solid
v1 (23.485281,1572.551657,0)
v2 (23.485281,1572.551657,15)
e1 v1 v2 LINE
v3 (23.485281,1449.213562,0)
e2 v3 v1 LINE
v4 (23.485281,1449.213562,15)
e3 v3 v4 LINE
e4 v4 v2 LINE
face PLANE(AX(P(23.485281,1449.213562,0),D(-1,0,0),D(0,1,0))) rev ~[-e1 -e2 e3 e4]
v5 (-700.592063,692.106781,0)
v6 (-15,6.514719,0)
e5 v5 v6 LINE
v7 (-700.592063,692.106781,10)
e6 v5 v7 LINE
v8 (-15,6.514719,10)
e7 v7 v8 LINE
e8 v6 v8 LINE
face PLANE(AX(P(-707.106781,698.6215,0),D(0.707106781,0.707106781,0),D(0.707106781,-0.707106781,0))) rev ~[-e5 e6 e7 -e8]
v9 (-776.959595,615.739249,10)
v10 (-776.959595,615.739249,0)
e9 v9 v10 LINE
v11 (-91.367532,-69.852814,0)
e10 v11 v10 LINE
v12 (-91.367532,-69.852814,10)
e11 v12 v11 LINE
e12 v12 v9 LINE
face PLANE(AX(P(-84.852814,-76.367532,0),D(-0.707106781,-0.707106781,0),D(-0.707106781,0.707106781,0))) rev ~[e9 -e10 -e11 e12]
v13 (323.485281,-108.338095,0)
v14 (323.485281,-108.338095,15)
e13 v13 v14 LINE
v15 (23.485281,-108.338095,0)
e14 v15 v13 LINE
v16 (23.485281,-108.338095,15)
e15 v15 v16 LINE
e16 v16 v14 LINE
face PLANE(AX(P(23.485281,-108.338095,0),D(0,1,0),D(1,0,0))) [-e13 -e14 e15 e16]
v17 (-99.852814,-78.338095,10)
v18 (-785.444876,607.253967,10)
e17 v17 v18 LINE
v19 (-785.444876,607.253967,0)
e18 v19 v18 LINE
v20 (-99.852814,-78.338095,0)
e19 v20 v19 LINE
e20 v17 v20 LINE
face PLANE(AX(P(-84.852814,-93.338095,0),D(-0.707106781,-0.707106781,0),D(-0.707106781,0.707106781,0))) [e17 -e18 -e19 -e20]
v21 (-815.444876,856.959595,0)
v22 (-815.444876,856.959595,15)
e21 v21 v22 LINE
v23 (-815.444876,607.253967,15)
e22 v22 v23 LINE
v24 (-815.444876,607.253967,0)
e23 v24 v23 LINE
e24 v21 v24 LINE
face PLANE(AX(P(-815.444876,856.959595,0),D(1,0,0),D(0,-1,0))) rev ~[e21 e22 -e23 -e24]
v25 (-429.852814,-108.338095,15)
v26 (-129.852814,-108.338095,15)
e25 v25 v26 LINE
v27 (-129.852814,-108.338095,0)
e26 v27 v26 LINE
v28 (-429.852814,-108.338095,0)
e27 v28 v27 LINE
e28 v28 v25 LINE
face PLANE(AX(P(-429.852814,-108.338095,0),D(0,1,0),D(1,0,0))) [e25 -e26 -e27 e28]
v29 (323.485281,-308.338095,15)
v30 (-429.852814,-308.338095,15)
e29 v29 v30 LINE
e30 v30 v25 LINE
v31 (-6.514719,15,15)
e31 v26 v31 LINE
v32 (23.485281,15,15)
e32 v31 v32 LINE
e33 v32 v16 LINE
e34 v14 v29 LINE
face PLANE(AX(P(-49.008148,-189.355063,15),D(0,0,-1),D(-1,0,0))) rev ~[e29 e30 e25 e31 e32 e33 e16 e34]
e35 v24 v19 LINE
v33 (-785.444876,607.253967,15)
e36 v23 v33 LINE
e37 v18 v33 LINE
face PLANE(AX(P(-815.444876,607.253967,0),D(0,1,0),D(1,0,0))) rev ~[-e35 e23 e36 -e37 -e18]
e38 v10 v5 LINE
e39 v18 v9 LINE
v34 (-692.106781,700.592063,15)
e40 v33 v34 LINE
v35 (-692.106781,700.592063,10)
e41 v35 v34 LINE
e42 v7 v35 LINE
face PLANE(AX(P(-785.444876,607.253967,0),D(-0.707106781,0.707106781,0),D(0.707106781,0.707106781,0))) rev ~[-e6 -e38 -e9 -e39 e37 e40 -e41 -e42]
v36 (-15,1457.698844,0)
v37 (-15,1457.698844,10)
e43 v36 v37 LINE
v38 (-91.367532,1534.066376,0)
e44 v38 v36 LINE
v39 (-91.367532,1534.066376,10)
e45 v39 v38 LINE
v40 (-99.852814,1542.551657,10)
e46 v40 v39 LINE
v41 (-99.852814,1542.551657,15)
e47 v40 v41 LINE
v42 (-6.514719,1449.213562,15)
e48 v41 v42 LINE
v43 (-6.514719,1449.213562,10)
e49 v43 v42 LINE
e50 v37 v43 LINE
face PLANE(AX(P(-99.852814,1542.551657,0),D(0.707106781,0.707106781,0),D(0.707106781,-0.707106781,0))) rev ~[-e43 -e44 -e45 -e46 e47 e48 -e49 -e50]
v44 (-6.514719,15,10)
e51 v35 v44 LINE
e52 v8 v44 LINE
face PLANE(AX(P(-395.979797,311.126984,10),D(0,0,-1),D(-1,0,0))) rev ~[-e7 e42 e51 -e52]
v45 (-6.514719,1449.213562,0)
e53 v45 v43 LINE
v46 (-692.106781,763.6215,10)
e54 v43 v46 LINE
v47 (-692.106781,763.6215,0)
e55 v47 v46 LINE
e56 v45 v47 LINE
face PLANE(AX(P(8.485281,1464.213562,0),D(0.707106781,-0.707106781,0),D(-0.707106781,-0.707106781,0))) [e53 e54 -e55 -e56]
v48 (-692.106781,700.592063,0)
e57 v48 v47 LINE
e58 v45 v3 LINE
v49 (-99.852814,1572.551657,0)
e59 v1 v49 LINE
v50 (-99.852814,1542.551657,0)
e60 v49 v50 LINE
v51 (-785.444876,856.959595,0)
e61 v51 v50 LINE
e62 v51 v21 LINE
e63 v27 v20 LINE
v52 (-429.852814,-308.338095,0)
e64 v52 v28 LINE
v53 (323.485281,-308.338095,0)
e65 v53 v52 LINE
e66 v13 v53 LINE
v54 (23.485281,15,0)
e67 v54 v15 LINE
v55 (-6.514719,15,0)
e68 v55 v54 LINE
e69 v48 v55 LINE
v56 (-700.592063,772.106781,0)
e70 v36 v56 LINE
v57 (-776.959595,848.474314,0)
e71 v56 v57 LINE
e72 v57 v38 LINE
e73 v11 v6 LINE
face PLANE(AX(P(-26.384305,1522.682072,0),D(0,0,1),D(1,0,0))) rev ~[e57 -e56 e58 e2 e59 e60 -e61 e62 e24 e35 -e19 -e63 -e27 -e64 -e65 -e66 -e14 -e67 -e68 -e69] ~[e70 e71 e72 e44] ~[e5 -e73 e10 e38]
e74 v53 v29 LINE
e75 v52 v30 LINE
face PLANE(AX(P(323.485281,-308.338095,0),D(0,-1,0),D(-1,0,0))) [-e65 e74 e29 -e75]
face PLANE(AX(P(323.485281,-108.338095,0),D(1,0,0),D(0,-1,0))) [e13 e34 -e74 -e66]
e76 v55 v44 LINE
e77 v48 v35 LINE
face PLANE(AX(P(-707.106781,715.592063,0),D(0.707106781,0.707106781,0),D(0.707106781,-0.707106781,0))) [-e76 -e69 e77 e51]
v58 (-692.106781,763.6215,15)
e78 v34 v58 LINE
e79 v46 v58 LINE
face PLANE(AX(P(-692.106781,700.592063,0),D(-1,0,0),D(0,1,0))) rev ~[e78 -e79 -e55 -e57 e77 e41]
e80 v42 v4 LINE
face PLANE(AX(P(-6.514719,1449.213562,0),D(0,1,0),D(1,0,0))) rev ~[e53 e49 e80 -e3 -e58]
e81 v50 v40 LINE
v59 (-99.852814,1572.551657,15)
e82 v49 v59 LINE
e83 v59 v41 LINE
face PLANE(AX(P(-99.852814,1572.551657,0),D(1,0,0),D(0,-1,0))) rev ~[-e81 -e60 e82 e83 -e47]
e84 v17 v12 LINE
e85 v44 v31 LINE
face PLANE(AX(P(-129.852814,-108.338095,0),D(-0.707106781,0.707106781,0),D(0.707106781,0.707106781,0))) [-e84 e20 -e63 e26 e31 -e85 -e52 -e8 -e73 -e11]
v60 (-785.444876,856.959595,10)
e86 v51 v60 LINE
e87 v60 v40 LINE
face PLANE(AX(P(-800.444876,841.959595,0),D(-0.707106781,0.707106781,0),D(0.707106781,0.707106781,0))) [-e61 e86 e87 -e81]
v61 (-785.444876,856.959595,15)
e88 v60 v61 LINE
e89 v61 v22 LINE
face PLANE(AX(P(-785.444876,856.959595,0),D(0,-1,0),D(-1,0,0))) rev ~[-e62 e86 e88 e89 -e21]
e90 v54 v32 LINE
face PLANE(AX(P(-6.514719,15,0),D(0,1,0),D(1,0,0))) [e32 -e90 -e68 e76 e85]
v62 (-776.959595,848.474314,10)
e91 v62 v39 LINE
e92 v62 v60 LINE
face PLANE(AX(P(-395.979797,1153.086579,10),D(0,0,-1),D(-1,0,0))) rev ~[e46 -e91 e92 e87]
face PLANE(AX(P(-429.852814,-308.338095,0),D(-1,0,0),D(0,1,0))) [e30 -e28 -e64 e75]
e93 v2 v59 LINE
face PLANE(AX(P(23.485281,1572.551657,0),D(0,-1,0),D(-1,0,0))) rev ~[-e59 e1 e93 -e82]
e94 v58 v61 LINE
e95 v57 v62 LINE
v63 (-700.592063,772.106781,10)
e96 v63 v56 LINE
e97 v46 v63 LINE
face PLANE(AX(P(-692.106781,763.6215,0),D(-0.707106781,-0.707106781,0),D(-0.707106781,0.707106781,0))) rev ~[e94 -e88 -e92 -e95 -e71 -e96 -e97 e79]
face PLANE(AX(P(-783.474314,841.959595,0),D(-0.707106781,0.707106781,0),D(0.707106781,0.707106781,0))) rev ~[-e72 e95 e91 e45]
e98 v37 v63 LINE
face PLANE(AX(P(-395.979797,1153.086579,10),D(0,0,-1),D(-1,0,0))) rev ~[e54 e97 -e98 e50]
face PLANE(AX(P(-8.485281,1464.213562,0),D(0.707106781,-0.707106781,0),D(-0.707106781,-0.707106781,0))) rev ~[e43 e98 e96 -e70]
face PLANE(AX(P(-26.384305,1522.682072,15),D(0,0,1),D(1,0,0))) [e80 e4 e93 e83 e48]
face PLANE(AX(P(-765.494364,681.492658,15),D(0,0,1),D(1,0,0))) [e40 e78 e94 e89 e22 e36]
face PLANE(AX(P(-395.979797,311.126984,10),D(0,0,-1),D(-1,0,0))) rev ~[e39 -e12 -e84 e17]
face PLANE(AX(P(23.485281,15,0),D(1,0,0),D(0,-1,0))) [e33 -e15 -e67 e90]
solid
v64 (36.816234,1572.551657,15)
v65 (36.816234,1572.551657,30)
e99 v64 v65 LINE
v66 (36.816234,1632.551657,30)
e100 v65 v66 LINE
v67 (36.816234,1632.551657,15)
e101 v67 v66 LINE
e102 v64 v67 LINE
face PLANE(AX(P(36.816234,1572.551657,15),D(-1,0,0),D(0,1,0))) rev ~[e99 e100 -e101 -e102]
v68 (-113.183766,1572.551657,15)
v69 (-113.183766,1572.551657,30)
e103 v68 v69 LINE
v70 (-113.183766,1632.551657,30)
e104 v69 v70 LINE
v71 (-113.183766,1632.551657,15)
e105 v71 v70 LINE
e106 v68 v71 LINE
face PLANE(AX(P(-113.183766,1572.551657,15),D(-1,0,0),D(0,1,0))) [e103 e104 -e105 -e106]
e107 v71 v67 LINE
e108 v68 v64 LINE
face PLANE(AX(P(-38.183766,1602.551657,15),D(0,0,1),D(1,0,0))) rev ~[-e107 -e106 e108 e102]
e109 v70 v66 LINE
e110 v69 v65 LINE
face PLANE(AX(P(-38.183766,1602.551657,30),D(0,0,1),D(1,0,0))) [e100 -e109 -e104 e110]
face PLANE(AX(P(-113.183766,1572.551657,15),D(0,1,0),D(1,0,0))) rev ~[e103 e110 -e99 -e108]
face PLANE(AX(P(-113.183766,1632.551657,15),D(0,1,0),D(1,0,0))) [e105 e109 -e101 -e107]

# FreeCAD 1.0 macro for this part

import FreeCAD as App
import Part
import Sketcher
from FreeCAD import Vector
Q = App.Units.Quantity


def add_polygon(sketch, points):
    """Adds a closed chain of lines whose ends are joined by coincident constraints."""
    first, n = sketch.GeometryCount, len(points)
    for a, b in zip(points, points[1:] + points[:1]):
        sketch.addGeometry(Part.LineSegment(App.Vector(*a, 0), App.Vector(*b, 0)), False)
    for i in range(n):
        sketch.addConstraint(Sketcher.Constraint("Coincident", first + i, 2, first + (i + 1) % n, 1))

doc = App.newDocument("Part")
body = doc.addObject("PartDesign::Body", "Body")

sketch1 = body.newObject("Sketcher::SketchObject", "Sketch")
sketch1.AttachmentSupport = (doc.getObject("XY_Plane"), [""])
sketch1.MapMode = "FlatFace"
add_polygon(sketch1, [(8.485281, 0), (-707.106781, 715.592063), (-800.444876, 622.253967), (-84.852814, -93.338095)])
add_polygon(sketch1, [(-707.106781, 698.6215), (-8.485281, 0), (-84.852814, -76.367532), (-783.474314, 622.253967)])
sketch1.addConstraint([
    Sketcher.Constraint("Symmetric", 3, 2, 4, 2, -1, 1),
    Sketcher.Constraint("PointOnObject", 3, 2, -1),
    Sketcher.Constraint("Perpendicular", 0, 1),
    Sketcher.Constraint("Perpendicular", 1, 2),
    Sketcher.Constraint("Perpendicular", 2, 3),
    Sketcher.Constraint("Perpendicular", 3, 4),
    Sketcher.Constraint("Perpendicular", 4, 5),
    Sketcher.Constraint("Perpendicular", 5, 6),
    Sketcher.Constraint("Perpendicular", 6, 7),
    Sketcher.Constraint("Horizontal", 1, 2, 6, 2),
    Sketcher.Constraint("Vertical", 2, 2, 5, 2),
    Sketcher.Constraint("Vertical", 0, 2, 7, 2),
    Sketcher.Constraint("Distance", 0, Q("1012 mm")),
    Sketcher.Constraint("Distance", 1, Q("132 mm")),
    Sketcher.Constraint("Distance", 4, Q("988 mm")),
])
pad1 = body.newObject("PartDesign::Pad", "Pad")
pad1.Profile = sketch1
pad1.Length = 10
body2 = doc.addObject("PartDesign::Body", "Body001")

sketch2 = body2.newObject("Sketcher::SketchObject", "Sketch001")
sketch2.AttachmentSupport = (doc.getObject("XY_Plane001"), [""])
sketch2.MapMode = "FlatFace"
add_polygon(sketch2, [(-707.106781, 748.6215), (8.485281, 1464.213562), (-84.852814, 1557.551657), (-800.444876, 841.959595)])
add_polygon(sketch2, [(-8.485281, 1464.213562), (-707.106781, 765.592063), (-783.474314, 841.959595), (-84.852814, 1540.581095)])
sketch2.addConstraint([
    Sketcher.Constraint("Symmetric", 0, 2, 7, 2, -2),
    Sketcher.Constraint("Perpendicular", 0, 1),
    Sketcher.Constraint("Perpendicular", 1, 2),
    Sketcher.Constraint("Perpendicular", 2, 3),
    Sketcher.Constraint("Perpendicular", 3, 4),
    Sketcher.Constraint("Perpendicular", 4, 5),
    Sketcher.Constraint("Perpendicular", 5, 6),
    Sketcher.Constraint("Perpendicular", 6, 7),
    Sketcher.Constraint("Horizontal", 2, 2, 5, 2),
    Sketcher.Constraint("Vertical", 3, 2, 4, 2),
    Sketcher.Constraint("Vertical", 1, 2, 6, 2),
    Sketcher.Constraint("Distance", 0, Q("1012 mm")),
    Sketcher.Constraint("Distance", 1, Q("132 mm")),
    Sketcher.Constraint("Distance", 4, Q("988 mm")),
    Sketcher.Constraint("DistanceY", -1, 1, 3, 2, Q("748.6215 mm")),
])
pad2 = body2.newObject("PartDesign::Pad", "Pad001")
pad2.Profile = sketch2
pad2.Length = 10
body.AllowCompound = True
doc.recompute()

boolean = body.newObject("PartDesign::Boolean", "Boolean")
boolean.Type = "Fuse"
boolean.addObjects([body2])

sketch3 = body.newObject("Sketcher::SketchObject", "Sketch002")
sketch3.AttachmentSupport = (doc.getObject("XY_Plane"), [""])
sketch3.MapMode = "FlatFace"
add_polygon(sketch3, [(-815.444876, 607.253967), (-785.444876, 607.253967), (-692.106781, 700.592063), (-692.106781, 763.6215), (-785.444876, 856.959595), (-815.444876, 856.959595)])
sketch3.addConstraint([
    Sketcher.Constraint("Horizontal", 0),
    Sketcher.Constraint("Vertical", 2),
    Sketcher.Constraint("Horizontal", 4),
    Sketcher.Constraint("Vertical", 5),
    Sketcher.Constraint("Perpendicular", 1, 3),
    Sketcher.Constraint("Vertical", 0, 2, 3, 2),
    Sketcher.Constraint("Equal", 1, 3),
    Sketcher.Constraint("DistanceX", 0, 1, 0, 2, Q("30 mm")),
    Sketcher.Constraint("Distance", 1, Q("132 mm")),
    Sketcher.Constraint("DistanceY", -1, 1, 2, 2, Q("763.6215 mm")),
    Sketcher.Constraint("DistanceY", 2, 1, 2, 2, Q("63.029437 mm")),
    Sketcher.Constraint("DistanceX", 1, 2, -1, 1, Q("692.106781 mm")),
])
pad3 = body.newObject("PartDesign::Pad", "Pad002")
pad3.Profile = sketch3
pad3.Length = 15

sketch4 = body.newObject("Sketcher::SketchObject", "Sketch003")
sketch4.AttachmentSupport = (doc.getObject("XY_Plane"), [""])
sketch4.MapMode = "FlatFace"
add_polygon(sketch4, [(-6.514719, 15), (-129.852814, -108.338095), (-429.852814, -108.338095), (-429.852814, -308.338095), (323.485281, -308.338095), (323.485281, -108.338095), (23.485281, -108.338095), (23.485281, 15)])
sketch4.addConstraint([
    Sketcher.Constraint("Horizontal", 1),
    Sketcher.Constraint("Vertical", 2),
    Sketcher.Constraint("Horizontal", 3),
    Sketcher.Constraint("Vertical", 4),
    Sketcher.Constraint("Horizontal", 5),
    Sketcher.Constraint("Vertical", 6),
    Sketcher.Constraint("Horizontal", 7),
    Sketcher.Constraint("Horizontal", 1, 2, 4, 2),
    Sketcher.Constraint("Equal", 1, 5),
    Sketcher.Constraint("DistanceX", 1, 2, 1, 1, Q("300 mm")),
    Sketcher.Constraint("DistanceX", 7, 2, 7, 1, Q("30 mm")),
    Sketcher.Constraint("DistanceY", 2, 2, 2, 1, Q("200 mm")),
    Sketcher.Constraint("Angle", 0, Q("-135 deg")),
    Sketcher.Constraint("DistanceY", -1, 1, 6, 2, Q("15 mm")),
    Sketcher.Constraint("DistanceX", 3, 1, 3, 2, Q("753.338095 mm")),
    Sketcher.Constraint("DistanceX", -1, 1, 3, 2, Q("323.485281 mm")),
])
pad4 = body.newObject("PartDesign::Pad", "Pad003")
pad4.Profile = sketch4
pad4.Length = 15

sketch5 = body.newObject("Sketcher::SketchObject", "Sketch004")
sketch5.AttachmentSupport = (doc.getObject("XY_Plane"), [""])
sketch5.MapMode = "FlatFace"
add_polygon(sketch5, [(-99.852814, 1572.551657), (-99.852814, 1542.551657), (-6.514719, 1449.213562), (23.485281, 1449.213562), (23.485281, 1572.551657)])
sketch5.addConstraint([
    Sketcher.Constraint("Vertical", 0),
    Sketcher.Constraint("Horizontal", 2),
    Sketcher.Constraint("Vertical", 3),
    Sketcher.Constraint("Horizontal", 4),
    Sketcher.Constraint("Equal", 2, 0),
    Sketcher.Constraint("Equal", 4, 3),
    Sketcher.Constraint("DistanceX", 2, 1, 2, 2, Q("30 mm")),
    Sketcher.Constraint("Distance", 1, Q("132 mm")),
    Sketcher.Constraint("DistanceX", 1, 2, -1, 1, Q("6.514719 mm")),
    Sketcher.Constraint("DistanceY", -1, 1, 0, 2, Q("1542.551657 mm")),
])
pad5 = body.newObject("PartDesign::Pad", "Pad004")
pad5.Profile = sketch5
pad5.Length = 15
body3 = doc.addObject("PartDesign::Body", "Body002")

sketch6 = body3.newObject("Sketcher::SketchObject", "Sketch005")
sketch6.AttachmentSupport = (doc.getObject("XY_Plane002"), [""])
sketch6.MapMode = "FlatFace"
sketch6.AttachmentOffset = App.Placement(Vector(0, 0, 15), App.Rotation())
add_polygon(sketch6, [(-113.183766, 1632.551657), (-113.183766, 1572.551657), (36.816234, 1572.551657), (36.816234, 1632.551657)])
sketch6.addConstraint([
    Sketcher.Constraint("Vertical", 0),
    Sketcher.Constraint("Horizontal", 1),
    Sketcher.Constraint("Vertical", 2),
    Sketcher.Constraint("Horizontal", 3),
    Sketcher.Constraint("DistanceX", 1, 1, 1, 2, Q("150 mm")),
    Sketcher.Constraint("DistanceY", 0, 2, 0, 1, Q("60 mm")),
    Sketcher.Constraint("DistanceX", 0, 2, -1, 1, Q("113.183766 mm")),
    Sketcher.Constraint("DistanceY", -1, 1, 0, 2, Q("1572.551657 mm")),
])
pad6 = body3.newObject("PartDesign::Pad", "Pad005")
pad6.Profile = sketch6
pad6.Length = 15

doc.recompute()
